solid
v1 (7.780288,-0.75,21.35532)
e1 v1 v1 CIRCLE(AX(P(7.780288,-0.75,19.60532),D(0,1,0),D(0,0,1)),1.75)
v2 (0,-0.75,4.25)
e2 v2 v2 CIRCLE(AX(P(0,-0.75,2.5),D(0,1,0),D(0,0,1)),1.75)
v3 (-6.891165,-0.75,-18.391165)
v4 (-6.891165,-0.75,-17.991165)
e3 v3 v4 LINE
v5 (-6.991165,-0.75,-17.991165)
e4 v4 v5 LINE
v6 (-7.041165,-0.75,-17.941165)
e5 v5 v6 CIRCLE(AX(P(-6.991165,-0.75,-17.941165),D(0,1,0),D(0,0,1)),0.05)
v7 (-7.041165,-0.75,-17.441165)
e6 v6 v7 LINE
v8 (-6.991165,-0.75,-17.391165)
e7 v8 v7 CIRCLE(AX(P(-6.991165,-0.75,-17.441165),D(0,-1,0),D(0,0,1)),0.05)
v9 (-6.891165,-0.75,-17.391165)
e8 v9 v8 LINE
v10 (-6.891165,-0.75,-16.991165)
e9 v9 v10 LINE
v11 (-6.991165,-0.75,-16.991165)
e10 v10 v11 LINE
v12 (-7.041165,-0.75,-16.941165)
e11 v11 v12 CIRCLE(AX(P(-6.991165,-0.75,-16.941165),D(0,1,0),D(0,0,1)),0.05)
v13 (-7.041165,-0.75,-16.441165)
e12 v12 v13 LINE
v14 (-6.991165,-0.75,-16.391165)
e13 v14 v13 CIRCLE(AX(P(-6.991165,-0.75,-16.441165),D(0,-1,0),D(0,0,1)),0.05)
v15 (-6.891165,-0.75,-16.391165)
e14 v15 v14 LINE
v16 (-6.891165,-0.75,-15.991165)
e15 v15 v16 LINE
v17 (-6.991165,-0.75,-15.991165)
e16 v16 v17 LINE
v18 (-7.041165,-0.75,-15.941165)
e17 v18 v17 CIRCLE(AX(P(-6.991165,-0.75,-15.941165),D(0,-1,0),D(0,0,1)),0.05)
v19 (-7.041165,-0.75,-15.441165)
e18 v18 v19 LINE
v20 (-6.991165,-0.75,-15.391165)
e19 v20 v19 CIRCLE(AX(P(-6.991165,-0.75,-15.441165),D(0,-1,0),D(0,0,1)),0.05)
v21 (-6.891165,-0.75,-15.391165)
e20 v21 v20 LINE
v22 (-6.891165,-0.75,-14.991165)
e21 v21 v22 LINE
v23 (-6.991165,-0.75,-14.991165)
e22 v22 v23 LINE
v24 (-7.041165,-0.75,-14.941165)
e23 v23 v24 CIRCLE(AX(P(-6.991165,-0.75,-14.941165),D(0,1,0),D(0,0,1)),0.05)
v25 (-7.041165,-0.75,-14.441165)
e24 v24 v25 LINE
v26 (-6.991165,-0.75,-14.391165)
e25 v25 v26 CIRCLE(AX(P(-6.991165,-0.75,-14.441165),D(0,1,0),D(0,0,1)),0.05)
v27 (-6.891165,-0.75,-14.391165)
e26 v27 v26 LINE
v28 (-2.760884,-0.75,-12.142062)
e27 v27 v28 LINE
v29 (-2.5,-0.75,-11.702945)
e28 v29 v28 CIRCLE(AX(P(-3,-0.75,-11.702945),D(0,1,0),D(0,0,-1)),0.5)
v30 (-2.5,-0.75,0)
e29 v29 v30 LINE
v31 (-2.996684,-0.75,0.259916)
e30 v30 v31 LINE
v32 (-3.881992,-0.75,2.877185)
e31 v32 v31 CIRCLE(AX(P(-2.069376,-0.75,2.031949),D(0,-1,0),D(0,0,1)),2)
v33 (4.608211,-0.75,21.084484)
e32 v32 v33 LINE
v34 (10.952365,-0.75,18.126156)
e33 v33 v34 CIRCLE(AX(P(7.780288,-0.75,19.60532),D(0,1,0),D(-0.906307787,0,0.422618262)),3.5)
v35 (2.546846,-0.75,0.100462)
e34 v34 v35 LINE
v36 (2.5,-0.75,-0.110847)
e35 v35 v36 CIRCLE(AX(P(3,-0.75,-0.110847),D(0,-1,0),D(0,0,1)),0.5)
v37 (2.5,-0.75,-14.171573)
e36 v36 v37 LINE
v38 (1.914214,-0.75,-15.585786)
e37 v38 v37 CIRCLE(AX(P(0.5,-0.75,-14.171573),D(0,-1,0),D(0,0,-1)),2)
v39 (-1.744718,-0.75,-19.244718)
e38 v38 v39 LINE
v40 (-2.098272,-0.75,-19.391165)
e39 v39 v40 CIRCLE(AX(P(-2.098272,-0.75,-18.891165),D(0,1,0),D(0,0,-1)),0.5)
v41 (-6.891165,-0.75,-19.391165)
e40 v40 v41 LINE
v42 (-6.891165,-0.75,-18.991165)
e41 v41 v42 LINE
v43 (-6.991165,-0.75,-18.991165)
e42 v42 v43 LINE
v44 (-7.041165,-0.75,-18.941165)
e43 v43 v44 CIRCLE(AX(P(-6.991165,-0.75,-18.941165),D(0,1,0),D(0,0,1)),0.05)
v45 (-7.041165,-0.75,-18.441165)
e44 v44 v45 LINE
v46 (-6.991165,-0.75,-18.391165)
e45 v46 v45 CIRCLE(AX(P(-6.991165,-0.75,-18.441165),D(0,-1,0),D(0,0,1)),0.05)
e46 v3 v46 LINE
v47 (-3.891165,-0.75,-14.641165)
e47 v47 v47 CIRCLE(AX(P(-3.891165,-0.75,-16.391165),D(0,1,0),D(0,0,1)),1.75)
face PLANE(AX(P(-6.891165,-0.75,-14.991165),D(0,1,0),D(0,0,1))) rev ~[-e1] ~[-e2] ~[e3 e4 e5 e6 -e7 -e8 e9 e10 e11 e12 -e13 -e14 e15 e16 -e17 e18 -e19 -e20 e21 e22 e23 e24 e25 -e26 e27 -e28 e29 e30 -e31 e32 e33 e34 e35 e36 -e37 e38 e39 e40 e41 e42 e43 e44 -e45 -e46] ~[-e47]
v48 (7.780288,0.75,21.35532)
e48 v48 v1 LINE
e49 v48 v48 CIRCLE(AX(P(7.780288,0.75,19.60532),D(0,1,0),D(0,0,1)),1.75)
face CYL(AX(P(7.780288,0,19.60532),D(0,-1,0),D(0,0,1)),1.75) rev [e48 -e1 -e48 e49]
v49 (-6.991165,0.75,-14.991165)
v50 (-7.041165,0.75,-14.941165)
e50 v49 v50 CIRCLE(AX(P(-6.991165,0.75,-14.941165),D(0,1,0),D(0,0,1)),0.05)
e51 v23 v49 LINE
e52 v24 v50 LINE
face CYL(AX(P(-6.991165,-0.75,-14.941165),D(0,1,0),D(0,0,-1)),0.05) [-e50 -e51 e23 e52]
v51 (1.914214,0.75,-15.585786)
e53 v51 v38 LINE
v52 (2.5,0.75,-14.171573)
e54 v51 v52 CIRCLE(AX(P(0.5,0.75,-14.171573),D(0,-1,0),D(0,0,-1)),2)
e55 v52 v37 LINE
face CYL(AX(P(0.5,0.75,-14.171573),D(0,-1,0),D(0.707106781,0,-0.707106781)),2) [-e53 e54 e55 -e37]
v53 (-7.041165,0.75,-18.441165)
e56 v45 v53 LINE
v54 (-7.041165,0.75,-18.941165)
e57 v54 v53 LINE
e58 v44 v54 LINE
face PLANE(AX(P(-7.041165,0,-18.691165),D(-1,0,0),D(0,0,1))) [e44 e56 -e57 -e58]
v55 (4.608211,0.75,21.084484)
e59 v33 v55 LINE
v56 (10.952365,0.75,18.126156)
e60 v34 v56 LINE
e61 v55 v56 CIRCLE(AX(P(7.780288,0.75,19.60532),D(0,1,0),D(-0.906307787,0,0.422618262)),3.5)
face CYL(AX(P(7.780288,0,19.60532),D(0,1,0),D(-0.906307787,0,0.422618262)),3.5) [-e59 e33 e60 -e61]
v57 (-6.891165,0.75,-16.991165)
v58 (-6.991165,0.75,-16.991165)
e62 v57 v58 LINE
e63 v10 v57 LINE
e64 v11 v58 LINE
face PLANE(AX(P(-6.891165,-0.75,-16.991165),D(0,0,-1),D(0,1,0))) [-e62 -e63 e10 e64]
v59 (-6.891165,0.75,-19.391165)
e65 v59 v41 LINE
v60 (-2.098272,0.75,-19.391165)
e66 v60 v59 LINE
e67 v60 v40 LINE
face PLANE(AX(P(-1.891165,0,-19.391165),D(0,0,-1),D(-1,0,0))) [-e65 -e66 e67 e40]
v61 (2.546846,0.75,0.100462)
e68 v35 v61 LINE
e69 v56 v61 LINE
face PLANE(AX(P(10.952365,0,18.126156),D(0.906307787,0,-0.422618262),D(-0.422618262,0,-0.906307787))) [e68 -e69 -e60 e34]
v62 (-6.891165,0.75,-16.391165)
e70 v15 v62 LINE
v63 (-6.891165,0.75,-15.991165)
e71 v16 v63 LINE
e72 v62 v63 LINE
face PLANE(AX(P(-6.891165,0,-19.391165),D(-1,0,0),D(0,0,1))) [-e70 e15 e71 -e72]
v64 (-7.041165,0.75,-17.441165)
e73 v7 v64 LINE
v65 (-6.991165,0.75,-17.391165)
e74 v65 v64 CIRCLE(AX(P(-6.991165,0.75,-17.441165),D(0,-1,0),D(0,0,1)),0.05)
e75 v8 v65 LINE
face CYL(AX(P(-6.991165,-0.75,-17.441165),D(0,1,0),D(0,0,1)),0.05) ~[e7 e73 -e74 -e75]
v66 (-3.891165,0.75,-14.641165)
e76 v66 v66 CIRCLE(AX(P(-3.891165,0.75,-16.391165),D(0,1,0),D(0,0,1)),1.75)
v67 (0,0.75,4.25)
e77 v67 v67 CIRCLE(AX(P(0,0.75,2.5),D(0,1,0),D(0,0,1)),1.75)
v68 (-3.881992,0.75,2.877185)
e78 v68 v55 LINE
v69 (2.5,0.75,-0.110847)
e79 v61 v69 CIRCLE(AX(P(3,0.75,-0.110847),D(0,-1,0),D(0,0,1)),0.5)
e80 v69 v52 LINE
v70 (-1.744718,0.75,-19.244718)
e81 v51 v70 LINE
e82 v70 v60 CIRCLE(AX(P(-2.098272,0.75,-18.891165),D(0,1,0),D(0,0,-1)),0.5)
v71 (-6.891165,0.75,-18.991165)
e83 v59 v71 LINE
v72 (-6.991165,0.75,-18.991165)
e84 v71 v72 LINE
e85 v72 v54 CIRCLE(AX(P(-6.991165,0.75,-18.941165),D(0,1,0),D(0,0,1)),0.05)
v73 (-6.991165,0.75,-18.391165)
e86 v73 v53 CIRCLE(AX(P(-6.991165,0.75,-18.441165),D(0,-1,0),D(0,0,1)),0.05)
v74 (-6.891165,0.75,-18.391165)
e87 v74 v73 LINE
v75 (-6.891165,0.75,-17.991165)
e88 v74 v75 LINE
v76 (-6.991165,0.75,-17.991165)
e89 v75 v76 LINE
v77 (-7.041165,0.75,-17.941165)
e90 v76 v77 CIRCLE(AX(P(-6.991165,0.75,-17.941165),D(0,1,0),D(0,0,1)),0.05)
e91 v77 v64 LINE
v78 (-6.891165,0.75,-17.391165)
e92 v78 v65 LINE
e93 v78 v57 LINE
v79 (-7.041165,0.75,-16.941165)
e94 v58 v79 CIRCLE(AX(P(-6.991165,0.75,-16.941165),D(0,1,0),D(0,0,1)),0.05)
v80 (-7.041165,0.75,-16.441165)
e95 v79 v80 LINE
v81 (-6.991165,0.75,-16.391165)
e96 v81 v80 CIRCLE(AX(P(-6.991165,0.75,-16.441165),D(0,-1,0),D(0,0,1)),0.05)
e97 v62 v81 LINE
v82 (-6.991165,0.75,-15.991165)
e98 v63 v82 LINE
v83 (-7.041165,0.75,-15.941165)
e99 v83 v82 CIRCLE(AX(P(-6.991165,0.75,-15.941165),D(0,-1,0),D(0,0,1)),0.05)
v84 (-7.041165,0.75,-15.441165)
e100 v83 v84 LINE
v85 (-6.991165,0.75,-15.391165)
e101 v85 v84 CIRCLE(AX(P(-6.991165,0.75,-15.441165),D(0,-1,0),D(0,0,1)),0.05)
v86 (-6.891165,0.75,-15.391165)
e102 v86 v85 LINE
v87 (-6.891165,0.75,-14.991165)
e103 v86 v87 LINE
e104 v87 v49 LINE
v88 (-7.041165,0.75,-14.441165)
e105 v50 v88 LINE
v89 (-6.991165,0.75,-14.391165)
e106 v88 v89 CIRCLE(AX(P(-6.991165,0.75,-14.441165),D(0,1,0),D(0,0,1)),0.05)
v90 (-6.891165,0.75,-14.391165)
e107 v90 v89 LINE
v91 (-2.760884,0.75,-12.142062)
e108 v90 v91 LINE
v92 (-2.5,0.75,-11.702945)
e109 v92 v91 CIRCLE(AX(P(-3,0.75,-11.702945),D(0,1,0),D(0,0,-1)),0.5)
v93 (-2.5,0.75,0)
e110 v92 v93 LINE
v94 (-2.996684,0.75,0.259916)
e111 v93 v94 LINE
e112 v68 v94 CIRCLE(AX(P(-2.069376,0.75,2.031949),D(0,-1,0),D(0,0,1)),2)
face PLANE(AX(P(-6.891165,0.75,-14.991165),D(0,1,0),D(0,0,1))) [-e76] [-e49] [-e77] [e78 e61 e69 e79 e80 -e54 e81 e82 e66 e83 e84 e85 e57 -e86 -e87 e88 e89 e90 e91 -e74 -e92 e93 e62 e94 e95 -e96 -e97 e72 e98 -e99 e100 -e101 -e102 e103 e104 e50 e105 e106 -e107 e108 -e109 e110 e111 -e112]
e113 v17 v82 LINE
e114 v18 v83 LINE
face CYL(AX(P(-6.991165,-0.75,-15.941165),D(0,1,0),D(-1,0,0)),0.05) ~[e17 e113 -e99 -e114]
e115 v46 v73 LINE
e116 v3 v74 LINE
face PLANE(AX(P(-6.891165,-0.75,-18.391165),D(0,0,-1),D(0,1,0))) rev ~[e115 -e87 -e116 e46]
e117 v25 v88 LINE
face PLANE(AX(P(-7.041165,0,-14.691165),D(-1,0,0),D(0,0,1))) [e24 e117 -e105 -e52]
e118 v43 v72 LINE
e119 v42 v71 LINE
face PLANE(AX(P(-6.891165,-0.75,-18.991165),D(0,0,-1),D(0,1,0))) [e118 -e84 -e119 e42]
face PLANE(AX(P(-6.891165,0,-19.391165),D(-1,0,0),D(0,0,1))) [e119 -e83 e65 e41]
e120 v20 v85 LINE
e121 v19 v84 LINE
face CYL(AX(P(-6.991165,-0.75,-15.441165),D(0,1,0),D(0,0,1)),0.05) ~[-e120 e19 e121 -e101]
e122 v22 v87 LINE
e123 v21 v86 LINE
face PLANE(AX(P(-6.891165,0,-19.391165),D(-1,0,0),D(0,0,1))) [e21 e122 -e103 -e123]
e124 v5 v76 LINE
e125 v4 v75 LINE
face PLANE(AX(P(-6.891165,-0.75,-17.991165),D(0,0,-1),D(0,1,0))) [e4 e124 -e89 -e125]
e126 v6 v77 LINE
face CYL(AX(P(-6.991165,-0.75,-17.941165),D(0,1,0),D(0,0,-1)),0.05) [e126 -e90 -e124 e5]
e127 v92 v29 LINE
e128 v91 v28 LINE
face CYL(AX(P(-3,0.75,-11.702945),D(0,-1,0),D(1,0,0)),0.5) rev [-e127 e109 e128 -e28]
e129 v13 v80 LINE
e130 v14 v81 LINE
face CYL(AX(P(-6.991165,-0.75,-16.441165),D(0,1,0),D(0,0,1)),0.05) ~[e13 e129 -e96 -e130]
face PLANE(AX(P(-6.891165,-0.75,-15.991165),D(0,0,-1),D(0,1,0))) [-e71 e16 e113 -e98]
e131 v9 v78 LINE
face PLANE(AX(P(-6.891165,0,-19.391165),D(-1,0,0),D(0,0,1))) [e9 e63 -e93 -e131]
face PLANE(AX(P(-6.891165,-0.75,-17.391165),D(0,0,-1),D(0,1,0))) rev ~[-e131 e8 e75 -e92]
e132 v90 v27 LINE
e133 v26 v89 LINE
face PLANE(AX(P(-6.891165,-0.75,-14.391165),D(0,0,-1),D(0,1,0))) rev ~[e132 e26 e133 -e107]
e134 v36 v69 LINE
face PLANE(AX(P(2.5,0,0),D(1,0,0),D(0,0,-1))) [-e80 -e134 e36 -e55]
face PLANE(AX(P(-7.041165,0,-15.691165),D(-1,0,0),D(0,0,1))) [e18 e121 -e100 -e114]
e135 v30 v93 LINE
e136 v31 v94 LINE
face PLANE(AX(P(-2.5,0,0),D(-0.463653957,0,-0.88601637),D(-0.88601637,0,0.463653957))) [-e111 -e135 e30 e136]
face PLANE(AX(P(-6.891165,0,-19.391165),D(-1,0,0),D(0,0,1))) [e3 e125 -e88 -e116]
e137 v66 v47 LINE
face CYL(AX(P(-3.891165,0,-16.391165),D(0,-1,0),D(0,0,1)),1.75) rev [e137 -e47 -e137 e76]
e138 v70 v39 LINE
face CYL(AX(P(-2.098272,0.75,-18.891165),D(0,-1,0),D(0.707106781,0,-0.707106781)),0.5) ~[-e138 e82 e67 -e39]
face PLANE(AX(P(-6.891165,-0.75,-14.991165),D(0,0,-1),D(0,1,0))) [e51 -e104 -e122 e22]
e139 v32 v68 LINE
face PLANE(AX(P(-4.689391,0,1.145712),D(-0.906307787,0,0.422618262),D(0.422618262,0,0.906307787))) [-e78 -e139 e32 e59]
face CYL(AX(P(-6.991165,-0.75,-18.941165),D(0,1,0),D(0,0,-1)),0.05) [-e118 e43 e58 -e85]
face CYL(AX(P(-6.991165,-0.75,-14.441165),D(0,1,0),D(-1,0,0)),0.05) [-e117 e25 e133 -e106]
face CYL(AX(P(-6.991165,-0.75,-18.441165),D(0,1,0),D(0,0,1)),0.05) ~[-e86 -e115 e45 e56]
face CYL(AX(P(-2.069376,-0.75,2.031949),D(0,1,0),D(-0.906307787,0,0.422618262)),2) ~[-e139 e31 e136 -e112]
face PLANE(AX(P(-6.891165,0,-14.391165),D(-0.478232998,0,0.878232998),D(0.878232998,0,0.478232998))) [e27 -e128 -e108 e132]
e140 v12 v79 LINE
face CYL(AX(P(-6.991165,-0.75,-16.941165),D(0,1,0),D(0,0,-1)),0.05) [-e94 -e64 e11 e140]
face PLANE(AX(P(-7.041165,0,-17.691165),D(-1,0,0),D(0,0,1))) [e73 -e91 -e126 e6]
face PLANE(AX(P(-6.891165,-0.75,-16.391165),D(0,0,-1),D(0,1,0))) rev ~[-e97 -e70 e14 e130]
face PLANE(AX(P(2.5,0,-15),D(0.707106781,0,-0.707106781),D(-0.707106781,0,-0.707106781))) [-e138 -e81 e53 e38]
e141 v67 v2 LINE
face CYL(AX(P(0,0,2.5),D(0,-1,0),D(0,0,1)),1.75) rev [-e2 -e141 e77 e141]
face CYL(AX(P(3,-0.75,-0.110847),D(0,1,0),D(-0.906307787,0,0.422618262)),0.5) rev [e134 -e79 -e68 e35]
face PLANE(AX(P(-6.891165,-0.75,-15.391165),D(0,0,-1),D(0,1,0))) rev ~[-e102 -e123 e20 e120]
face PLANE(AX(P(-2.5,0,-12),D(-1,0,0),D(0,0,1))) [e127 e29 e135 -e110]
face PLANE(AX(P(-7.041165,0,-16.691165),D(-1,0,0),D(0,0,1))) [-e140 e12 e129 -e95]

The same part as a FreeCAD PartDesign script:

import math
import FreeCAD as App
import Part
import Sketcher
from FreeCAD import Vector
Q = App.Units.Quantity


def edges_at(feature, points):
    """Names of the edges that pass closest to the given points."""
    edges = feature.Shape.Edges
    near = lambda p: min(range(len(edges)), key=lambda i: edges[i].distToShape(Part.Vertex(*p))[0])
    return sorted({f"Edge{near(p) + 1}" for p in points})

doc = App.newDocument("Part")
body = doc.addObject("PartDesign::Body", "Body")

sketch1 = doc.addObject("Sketcher::SketchObject", "Sketch")
body.addObject(sketch1)
sketch1.AttachmentSupport = (doc.XZ_Plane, [""])
sketch1.MapMode = "FlatFace"
sketch1.addGeometry([
    Part.LineSegment(Vector(-2.5, -12, 0), Vector(-2.5, 0, 0)),
    Part.LineSegment(Vector(-2.5, 0, 0), Vector(-4.689391, 1.145712, 0)),
    Part.LineSegment(Vector(-4.689391, 1.145712, 0), Vector(4.608211, 21.084484, 0)),
    Part.ArcOfCircle(Part.Circle(Vector(7.780288, 19.60532, 0), Vector(0, 0, 1), 3.5), math.radians(-25), math.radians(155)),
    Part.LineSegment(Vector(10.952365, 18.126156, 0), Vector(2.5, 0, 0)),
    Part.LineSegment(Vector(2.5, 0, 0), Vector(2.5, -15, 0)),
    Part.LineSegment(Vector(2.5, -15, 0), Vector(-1.891165, -19.391165, 0)),
    Part.LineSegment(Vector(-1.891165, -19.391165, 0), Vector(-6.891165, -19.391165, 0)),
    Part.LineSegment(Vector(-6.891165, -19.391165, 0), Vector(-6.891165, -14.391165, 0)),
    Part.LineSegment(Vector(-6.891165, -14.391165, 0), Vector(-2.5, -12, 0)),
    Part.Circle(Vector(0, 2.5, 0), Vector(0, 0, 1), 1.75),
    Part.Circle(Vector(7.780288, 19.60532, 0), Vector(0, 0, 1), 1.75),
    Part.Circle(Vector(-3.891165, -16.391165, 0), Vector(0, 0, 1), 1.75),
], False)
sketch1.addConstraint([
    Sketcher.Constraint("Coincident", 0, 2, 1, 1),
    Sketcher.Constraint("Coincident", 1, 2, 2, 1),
    Sketcher.Constraint("Tangent", 2, 2, 3, 2),
    Sketcher.Constraint("Tangent", 3, 1, 4, 1),
    Sketcher.Constraint("Coincident", 4, 2, 5, 1),
    Sketcher.Constraint("Coincident", 5, 2, 6, 1),
    Sketcher.Constraint("Coincident", 6, 2, 7, 1),
    Sketcher.Constraint("Coincident", 7, 2, 8, 1),
    Sketcher.Constraint("Coincident", 8, 2, 9, 1),
    Sketcher.Constraint("Coincident", 9, 2, 0, 1),
    Sketcher.Constraint("Vertical", 0),
    Sketcher.Constraint("Vertical", 5),
    Sketcher.Constraint("Horizontal", 7),
    Sketcher.Constraint("Vertical", 8),
    Sketcher.Constraint("Coincident", 11, 3, 3, 3),
    Sketcher.Constraint("Equal", 10, 11),
    Sketcher.Constraint("Equal", 11, 12),
    Sketcher.Constraint("Symmetric", 0, 2, 4, 2, -1, 1),
    Sketcher.Constraint("PointOnObject", 10, 3, -2),
    Sketcher.Constraint("PointOnObject", 0, 2, -1),
    Sketcher.Constraint("Parallel", 2, 4),
    Sketcher.Constraint("Equal", 7, 8),
    Sketcher.Constraint("Diameter", 10, Q("3.5 mm")),
    Sketcher.Constraint("Radius", 3, Q("3.5 mm")),
    Sketcher.Constraint("DistanceX", 7, 2, 7, 1, Q("5 mm")),
    Sketcher.Constraint("DistanceY", 0, 1, 0, 2, Q("12 mm")),
    Sketcher.Constraint("DistanceY", 5, 2, 5, 1, Q("15 mm")),
    Sketcher.Constraint("Angle", 2, Q("65 deg")),
    Sketcher.Constraint("Angle", 6, Q("-135 deg")),
    Sketcher.Constraint("Distance", 2, Q("22 mm")),
    Sketcher.Constraint("Distance", 4, Q("20 mm")),
    Sketcher.Constraint("Distance", 9, Q("5 mm")),
    Sketcher.Constraint("DistanceX", 0, 2, 4, 2, Q("5 mm")),
    Sketcher.Constraint("DistanceX", 12, 3, 6, 2, Q("2 mm")),
    Sketcher.Constraint("DistanceY", 6, 2, 12, 3, Q("3 mm")),
    Sketcher.Constraint("DistanceY", -1, 1, 10, 3, Q("2.5 mm")),
])
pad1 = doc.addObject("PartDesign::Pad", "Pad")
body.addObject(pad1)
pad1.Profile = sketch1
pad1.Length = 1.5
pad1.Midplane = True
doc.recompute()

fillet = doc.addObject("PartDesign::Fillet", "Fillet")
body.addObject(fillet)
fillet.Base = (pad1, edges_at(pad1, [(2.5, 0, -15), (-4.689, 0, 1.146)]))
fillet.Radius = 2
doc.recompute()

fillet2 = doc.addObject("PartDesign::Fillet", "Fillet001")
body.addObject(fillet2)
fillet2.Base = (fillet, edges_at(fillet, [(-1.891, 0, -19.391), (2.5, 0, 0), (-2.5, 0, -12)]))
fillet2.Radius = 0.5

sketch2 = doc.addObject("Sketcher::SketchObject", "Sketch001")
body.addObject(sketch2)
sketch2.AttachmentSupport = (doc.YZ_Plane, [""])
sketch2.MapMode = "FlatFace"
sketch2.AttachmentOffset = App.Placement(Vector(0, 0, -6.891165), App.Rotation())
sketch2.addGeometry([
    Part.LineSegment(Vector(0.75, -14.991165, 0), Vector(-0.75, -14.991165, 0)),
    Part.LineSegment(Vector(-0.75, -14.991165, 0), Vector(-0.75, -14.391165, 0)),
    Part.LineSegment(Vector(-0.75, -14.391165, 0), Vector(0.75, -14.391165, 0)),
    Part.LineSegment(Vector(0.75, -14.391165, 0), Vector(0.75, -14.991165, 0)),
    Part.LineSegment(Vector(0.75, -15.991165, 0), Vector(-0.75, -15.991165, 0)),
    Part.LineSegment(Vector(-0.75, -15.991165, 0), Vector(-0.75, -15.391165, 0)),
    Part.LineSegment(Vector(-0.75, -15.391165, 0), Vector(0.75, -15.391165, 0)),
    Part.LineSegment(Vector(0.75, -15.391165, 0), Vector(0.75, -15.991165, 0)),
    Part.LineSegment(Vector(0.75, -16.991165, 0), Vector(-0.75, -16.991165, 0)),
    Part.LineSegment(Vector(-0.75, -16.991165, 0), Vector(-0.75, -16.391165, 0)),
    Part.LineSegment(Vector(-0.75, -16.391165, 0), Vector(0.75, -16.391165, 0)),
    Part.LineSegment(Vector(0.75, -16.391165, 0), Vector(0.75, -16.991165, 0)),
    Part.LineSegment(Vector(0.75, -17.991165, 0), Vector(-0.75, -17.991165, 0)),
    Part.LineSegment(Vector(-0.75, -17.991165, 0), Vector(-0.75, -17.391165, 0)),
    Part.LineSegment(Vector(-0.75, -17.391165, 0), Vector(0.75, -17.391165, 0)),
    Part.LineSegment(Vector(0.75, -17.391165, 0), Vector(0.75, -17.991165, 0)),
    Part.LineSegment(Vector(0.75, -18.991165, 0), Vector(-0.75, -18.991165, 0)),
    Part.LineSegment(Vector(-0.75, -18.991165, 0), Vector(-0.75, -18.391165, 0)),
    Part.LineSegment(Vector(-0.75, -18.391165, 0), Vector(0.75, -18.391165, 0)),
    Part.LineSegment(Vector(0.75, -18.391165, 0), Vector(0.75, -18.991165, 0)),
], False)
sketch2.addConstraint([
    Sketcher.Constraint("Coincident", 0, 2, 1, 1),
    Sketcher.Constraint("Coincident", 1, 2, 2, 1),
    Sketcher.Constraint("Coincident", 2, 2, 3, 1),
    Sketcher.Constraint("Coincident", 3, 2, 0, 1),
    Sketcher.Constraint("Coincident", 4, 2, 5, 1),
    Sketcher.Constraint("Coincident", 5, 2, 6, 1),
    Sketcher.Constraint("Coincident", 6, 2, 7, 1),
    Sketcher.Constraint("Coincident", 7, 2, 4, 1),
    Sketcher.Constraint("Coincident", 8, 2, 9, 1),
    Sketcher.Constraint("Coincident", 9, 2, 10, 1),
    Sketcher.Constraint("Coincident", 10, 2, 11, 1),
    Sketcher.Constraint("Coincident", 11, 2, 8, 1),
    Sketcher.Constraint("Coincident", 12, 2, 13, 1),
    Sketcher.Constraint("Coincident", 13, 2, 14, 1),
    Sketcher.Constraint("Coincident", 14, 2, 15, 1),
    Sketcher.Constraint("Coincident", 15, 2, 12, 1),
    Sketcher.Constraint("Coincident", 16, 2, 17, 1),
    Sketcher.Constraint("Coincident", 17, 2, 18, 1),
    Sketcher.Constraint("Coincident", 18, 2, 19, 1),
    Sketcher.Constraint("Coincident", 19, 2, 16, 1),
    Sketcher.Constraint("Horizontal", 0),
    Sketcher.Constraint("Vertical", 1),
    Sketcher.Constraint("Horizontal", 2),
    Sketcher.Constraint("Vertical", 3),
    Sketcher.Constraint("Horizontal", 4),
    Sketcher.Constraint("Vertical", 5),
    Sketcher.Constraint("Horizontal", 6),
    Sketcher.Constraint("Vertical", 7),
    Sketcher.Constraint("Horizontal", 8),
    Sketcher.Constraint("Vertical", 9),
    Sketcher.Constraint("Horizontal", 10),
    Sketcher.Constraint("Vertical", 11),
    Sketcher.Constraint("Horizontal", 12),
    Sketcher.Constraint("Vertical", 13),
    Sketcher.Constraint("Horizontal", 14),
    Sketcher.Constraint("Vertical", 15),
    Sketcher.Constraint("Horizontal", 16),
    Sketcher.Constraint("Vertical", 17),
    Sketcher.Constraint("Horizontal", 18),
    Sketcher.Constraint("Vertical", 19),
    Sketcher.Constraint("Vertical", 1, 2, 4, 2),
    Sketcher.Constraint("Vertical", 3, 2, 6, 2),
    Sketcher.Constraint("Vertical", 5, 2, 8, 2),
    Sketcher.Constraint("Vertical", 7, 2, 10, 2),
    Sketcher.Constraint("Vertical", 9, 2, 12, 2),
    Sketcher.Constraint("Vertical", 11, 2, 14, 2),
    Sketcher.Constraint("Vertical", 13, 2, 16, 2),
    Sketcher.Constraint("Vertical", 15, 2, 18, 2),
    Sketcher.Constraint("Equal", 3, 5),
    Sketcher.Constraint("Equal", 7, 9),
    Sketcher.Constraint("Equal", 11, 13),
    Sketcher.Constraint("Equal", 15, 17),
    Sketcher.Constraint("DistanceX", 0, 2, 0, 1, Q("1.5 mm")),
    Sketcher.Constraint("DistanceY", 1, 1, 1, 2, Q("0.6 mm")),
    Sketcher.Constraint("DistanceY", 4, 2, 0, 2, Q("1 mm")),
    Sketcher.Constraint("DistanceY", 8, 2, 4, 2, Q("1 mm")),
    Sketcher.Constraint("DistanceY", 12, 2, 8, 2, Q("1 mm")),
    Sketcher.Constraint("DistanceY", 16, 2, 12, 2, Q("1 mm")),
    Sketcher.Constraint("DistanceX", 0, 2, -1, 1, Q("0.75 mm")),
    Sketcher.Constraint("DistanceY", 0, 2, -1, 1, Q("14.991165 mm")),
])
pad2 = doc.addObject("PartDesign::Pad", "Pad001")
body.addObject(pad2)
pad2.Profile = sketch2
pad2.Length = 0.15
pad2.Reversed = True
doc.recompute()

fillet3 = doc.addObject("PartDesign::Fillet", "Fillet002")
body.addObject(fillet3)
fillet3.Base = (pad2, edges_at(pad2, [
    (-7.041, 0, -16.991),
    (-7.041, 0, -16.391),
    (-7.041, 0, -17.991),
    (-7.041, 0, -17.391),
    (-7.041, 0, -18.991),
    (-7.041, 0, -18.391),
    (-7.041, 0, -14.991),
    (-7.041, 0, -14.391),
    (-7.041, 0, -15.991),
    (-7.041, 0, -15.391),
]))
fillet3.Radius = 0.05

doc.recompute()
